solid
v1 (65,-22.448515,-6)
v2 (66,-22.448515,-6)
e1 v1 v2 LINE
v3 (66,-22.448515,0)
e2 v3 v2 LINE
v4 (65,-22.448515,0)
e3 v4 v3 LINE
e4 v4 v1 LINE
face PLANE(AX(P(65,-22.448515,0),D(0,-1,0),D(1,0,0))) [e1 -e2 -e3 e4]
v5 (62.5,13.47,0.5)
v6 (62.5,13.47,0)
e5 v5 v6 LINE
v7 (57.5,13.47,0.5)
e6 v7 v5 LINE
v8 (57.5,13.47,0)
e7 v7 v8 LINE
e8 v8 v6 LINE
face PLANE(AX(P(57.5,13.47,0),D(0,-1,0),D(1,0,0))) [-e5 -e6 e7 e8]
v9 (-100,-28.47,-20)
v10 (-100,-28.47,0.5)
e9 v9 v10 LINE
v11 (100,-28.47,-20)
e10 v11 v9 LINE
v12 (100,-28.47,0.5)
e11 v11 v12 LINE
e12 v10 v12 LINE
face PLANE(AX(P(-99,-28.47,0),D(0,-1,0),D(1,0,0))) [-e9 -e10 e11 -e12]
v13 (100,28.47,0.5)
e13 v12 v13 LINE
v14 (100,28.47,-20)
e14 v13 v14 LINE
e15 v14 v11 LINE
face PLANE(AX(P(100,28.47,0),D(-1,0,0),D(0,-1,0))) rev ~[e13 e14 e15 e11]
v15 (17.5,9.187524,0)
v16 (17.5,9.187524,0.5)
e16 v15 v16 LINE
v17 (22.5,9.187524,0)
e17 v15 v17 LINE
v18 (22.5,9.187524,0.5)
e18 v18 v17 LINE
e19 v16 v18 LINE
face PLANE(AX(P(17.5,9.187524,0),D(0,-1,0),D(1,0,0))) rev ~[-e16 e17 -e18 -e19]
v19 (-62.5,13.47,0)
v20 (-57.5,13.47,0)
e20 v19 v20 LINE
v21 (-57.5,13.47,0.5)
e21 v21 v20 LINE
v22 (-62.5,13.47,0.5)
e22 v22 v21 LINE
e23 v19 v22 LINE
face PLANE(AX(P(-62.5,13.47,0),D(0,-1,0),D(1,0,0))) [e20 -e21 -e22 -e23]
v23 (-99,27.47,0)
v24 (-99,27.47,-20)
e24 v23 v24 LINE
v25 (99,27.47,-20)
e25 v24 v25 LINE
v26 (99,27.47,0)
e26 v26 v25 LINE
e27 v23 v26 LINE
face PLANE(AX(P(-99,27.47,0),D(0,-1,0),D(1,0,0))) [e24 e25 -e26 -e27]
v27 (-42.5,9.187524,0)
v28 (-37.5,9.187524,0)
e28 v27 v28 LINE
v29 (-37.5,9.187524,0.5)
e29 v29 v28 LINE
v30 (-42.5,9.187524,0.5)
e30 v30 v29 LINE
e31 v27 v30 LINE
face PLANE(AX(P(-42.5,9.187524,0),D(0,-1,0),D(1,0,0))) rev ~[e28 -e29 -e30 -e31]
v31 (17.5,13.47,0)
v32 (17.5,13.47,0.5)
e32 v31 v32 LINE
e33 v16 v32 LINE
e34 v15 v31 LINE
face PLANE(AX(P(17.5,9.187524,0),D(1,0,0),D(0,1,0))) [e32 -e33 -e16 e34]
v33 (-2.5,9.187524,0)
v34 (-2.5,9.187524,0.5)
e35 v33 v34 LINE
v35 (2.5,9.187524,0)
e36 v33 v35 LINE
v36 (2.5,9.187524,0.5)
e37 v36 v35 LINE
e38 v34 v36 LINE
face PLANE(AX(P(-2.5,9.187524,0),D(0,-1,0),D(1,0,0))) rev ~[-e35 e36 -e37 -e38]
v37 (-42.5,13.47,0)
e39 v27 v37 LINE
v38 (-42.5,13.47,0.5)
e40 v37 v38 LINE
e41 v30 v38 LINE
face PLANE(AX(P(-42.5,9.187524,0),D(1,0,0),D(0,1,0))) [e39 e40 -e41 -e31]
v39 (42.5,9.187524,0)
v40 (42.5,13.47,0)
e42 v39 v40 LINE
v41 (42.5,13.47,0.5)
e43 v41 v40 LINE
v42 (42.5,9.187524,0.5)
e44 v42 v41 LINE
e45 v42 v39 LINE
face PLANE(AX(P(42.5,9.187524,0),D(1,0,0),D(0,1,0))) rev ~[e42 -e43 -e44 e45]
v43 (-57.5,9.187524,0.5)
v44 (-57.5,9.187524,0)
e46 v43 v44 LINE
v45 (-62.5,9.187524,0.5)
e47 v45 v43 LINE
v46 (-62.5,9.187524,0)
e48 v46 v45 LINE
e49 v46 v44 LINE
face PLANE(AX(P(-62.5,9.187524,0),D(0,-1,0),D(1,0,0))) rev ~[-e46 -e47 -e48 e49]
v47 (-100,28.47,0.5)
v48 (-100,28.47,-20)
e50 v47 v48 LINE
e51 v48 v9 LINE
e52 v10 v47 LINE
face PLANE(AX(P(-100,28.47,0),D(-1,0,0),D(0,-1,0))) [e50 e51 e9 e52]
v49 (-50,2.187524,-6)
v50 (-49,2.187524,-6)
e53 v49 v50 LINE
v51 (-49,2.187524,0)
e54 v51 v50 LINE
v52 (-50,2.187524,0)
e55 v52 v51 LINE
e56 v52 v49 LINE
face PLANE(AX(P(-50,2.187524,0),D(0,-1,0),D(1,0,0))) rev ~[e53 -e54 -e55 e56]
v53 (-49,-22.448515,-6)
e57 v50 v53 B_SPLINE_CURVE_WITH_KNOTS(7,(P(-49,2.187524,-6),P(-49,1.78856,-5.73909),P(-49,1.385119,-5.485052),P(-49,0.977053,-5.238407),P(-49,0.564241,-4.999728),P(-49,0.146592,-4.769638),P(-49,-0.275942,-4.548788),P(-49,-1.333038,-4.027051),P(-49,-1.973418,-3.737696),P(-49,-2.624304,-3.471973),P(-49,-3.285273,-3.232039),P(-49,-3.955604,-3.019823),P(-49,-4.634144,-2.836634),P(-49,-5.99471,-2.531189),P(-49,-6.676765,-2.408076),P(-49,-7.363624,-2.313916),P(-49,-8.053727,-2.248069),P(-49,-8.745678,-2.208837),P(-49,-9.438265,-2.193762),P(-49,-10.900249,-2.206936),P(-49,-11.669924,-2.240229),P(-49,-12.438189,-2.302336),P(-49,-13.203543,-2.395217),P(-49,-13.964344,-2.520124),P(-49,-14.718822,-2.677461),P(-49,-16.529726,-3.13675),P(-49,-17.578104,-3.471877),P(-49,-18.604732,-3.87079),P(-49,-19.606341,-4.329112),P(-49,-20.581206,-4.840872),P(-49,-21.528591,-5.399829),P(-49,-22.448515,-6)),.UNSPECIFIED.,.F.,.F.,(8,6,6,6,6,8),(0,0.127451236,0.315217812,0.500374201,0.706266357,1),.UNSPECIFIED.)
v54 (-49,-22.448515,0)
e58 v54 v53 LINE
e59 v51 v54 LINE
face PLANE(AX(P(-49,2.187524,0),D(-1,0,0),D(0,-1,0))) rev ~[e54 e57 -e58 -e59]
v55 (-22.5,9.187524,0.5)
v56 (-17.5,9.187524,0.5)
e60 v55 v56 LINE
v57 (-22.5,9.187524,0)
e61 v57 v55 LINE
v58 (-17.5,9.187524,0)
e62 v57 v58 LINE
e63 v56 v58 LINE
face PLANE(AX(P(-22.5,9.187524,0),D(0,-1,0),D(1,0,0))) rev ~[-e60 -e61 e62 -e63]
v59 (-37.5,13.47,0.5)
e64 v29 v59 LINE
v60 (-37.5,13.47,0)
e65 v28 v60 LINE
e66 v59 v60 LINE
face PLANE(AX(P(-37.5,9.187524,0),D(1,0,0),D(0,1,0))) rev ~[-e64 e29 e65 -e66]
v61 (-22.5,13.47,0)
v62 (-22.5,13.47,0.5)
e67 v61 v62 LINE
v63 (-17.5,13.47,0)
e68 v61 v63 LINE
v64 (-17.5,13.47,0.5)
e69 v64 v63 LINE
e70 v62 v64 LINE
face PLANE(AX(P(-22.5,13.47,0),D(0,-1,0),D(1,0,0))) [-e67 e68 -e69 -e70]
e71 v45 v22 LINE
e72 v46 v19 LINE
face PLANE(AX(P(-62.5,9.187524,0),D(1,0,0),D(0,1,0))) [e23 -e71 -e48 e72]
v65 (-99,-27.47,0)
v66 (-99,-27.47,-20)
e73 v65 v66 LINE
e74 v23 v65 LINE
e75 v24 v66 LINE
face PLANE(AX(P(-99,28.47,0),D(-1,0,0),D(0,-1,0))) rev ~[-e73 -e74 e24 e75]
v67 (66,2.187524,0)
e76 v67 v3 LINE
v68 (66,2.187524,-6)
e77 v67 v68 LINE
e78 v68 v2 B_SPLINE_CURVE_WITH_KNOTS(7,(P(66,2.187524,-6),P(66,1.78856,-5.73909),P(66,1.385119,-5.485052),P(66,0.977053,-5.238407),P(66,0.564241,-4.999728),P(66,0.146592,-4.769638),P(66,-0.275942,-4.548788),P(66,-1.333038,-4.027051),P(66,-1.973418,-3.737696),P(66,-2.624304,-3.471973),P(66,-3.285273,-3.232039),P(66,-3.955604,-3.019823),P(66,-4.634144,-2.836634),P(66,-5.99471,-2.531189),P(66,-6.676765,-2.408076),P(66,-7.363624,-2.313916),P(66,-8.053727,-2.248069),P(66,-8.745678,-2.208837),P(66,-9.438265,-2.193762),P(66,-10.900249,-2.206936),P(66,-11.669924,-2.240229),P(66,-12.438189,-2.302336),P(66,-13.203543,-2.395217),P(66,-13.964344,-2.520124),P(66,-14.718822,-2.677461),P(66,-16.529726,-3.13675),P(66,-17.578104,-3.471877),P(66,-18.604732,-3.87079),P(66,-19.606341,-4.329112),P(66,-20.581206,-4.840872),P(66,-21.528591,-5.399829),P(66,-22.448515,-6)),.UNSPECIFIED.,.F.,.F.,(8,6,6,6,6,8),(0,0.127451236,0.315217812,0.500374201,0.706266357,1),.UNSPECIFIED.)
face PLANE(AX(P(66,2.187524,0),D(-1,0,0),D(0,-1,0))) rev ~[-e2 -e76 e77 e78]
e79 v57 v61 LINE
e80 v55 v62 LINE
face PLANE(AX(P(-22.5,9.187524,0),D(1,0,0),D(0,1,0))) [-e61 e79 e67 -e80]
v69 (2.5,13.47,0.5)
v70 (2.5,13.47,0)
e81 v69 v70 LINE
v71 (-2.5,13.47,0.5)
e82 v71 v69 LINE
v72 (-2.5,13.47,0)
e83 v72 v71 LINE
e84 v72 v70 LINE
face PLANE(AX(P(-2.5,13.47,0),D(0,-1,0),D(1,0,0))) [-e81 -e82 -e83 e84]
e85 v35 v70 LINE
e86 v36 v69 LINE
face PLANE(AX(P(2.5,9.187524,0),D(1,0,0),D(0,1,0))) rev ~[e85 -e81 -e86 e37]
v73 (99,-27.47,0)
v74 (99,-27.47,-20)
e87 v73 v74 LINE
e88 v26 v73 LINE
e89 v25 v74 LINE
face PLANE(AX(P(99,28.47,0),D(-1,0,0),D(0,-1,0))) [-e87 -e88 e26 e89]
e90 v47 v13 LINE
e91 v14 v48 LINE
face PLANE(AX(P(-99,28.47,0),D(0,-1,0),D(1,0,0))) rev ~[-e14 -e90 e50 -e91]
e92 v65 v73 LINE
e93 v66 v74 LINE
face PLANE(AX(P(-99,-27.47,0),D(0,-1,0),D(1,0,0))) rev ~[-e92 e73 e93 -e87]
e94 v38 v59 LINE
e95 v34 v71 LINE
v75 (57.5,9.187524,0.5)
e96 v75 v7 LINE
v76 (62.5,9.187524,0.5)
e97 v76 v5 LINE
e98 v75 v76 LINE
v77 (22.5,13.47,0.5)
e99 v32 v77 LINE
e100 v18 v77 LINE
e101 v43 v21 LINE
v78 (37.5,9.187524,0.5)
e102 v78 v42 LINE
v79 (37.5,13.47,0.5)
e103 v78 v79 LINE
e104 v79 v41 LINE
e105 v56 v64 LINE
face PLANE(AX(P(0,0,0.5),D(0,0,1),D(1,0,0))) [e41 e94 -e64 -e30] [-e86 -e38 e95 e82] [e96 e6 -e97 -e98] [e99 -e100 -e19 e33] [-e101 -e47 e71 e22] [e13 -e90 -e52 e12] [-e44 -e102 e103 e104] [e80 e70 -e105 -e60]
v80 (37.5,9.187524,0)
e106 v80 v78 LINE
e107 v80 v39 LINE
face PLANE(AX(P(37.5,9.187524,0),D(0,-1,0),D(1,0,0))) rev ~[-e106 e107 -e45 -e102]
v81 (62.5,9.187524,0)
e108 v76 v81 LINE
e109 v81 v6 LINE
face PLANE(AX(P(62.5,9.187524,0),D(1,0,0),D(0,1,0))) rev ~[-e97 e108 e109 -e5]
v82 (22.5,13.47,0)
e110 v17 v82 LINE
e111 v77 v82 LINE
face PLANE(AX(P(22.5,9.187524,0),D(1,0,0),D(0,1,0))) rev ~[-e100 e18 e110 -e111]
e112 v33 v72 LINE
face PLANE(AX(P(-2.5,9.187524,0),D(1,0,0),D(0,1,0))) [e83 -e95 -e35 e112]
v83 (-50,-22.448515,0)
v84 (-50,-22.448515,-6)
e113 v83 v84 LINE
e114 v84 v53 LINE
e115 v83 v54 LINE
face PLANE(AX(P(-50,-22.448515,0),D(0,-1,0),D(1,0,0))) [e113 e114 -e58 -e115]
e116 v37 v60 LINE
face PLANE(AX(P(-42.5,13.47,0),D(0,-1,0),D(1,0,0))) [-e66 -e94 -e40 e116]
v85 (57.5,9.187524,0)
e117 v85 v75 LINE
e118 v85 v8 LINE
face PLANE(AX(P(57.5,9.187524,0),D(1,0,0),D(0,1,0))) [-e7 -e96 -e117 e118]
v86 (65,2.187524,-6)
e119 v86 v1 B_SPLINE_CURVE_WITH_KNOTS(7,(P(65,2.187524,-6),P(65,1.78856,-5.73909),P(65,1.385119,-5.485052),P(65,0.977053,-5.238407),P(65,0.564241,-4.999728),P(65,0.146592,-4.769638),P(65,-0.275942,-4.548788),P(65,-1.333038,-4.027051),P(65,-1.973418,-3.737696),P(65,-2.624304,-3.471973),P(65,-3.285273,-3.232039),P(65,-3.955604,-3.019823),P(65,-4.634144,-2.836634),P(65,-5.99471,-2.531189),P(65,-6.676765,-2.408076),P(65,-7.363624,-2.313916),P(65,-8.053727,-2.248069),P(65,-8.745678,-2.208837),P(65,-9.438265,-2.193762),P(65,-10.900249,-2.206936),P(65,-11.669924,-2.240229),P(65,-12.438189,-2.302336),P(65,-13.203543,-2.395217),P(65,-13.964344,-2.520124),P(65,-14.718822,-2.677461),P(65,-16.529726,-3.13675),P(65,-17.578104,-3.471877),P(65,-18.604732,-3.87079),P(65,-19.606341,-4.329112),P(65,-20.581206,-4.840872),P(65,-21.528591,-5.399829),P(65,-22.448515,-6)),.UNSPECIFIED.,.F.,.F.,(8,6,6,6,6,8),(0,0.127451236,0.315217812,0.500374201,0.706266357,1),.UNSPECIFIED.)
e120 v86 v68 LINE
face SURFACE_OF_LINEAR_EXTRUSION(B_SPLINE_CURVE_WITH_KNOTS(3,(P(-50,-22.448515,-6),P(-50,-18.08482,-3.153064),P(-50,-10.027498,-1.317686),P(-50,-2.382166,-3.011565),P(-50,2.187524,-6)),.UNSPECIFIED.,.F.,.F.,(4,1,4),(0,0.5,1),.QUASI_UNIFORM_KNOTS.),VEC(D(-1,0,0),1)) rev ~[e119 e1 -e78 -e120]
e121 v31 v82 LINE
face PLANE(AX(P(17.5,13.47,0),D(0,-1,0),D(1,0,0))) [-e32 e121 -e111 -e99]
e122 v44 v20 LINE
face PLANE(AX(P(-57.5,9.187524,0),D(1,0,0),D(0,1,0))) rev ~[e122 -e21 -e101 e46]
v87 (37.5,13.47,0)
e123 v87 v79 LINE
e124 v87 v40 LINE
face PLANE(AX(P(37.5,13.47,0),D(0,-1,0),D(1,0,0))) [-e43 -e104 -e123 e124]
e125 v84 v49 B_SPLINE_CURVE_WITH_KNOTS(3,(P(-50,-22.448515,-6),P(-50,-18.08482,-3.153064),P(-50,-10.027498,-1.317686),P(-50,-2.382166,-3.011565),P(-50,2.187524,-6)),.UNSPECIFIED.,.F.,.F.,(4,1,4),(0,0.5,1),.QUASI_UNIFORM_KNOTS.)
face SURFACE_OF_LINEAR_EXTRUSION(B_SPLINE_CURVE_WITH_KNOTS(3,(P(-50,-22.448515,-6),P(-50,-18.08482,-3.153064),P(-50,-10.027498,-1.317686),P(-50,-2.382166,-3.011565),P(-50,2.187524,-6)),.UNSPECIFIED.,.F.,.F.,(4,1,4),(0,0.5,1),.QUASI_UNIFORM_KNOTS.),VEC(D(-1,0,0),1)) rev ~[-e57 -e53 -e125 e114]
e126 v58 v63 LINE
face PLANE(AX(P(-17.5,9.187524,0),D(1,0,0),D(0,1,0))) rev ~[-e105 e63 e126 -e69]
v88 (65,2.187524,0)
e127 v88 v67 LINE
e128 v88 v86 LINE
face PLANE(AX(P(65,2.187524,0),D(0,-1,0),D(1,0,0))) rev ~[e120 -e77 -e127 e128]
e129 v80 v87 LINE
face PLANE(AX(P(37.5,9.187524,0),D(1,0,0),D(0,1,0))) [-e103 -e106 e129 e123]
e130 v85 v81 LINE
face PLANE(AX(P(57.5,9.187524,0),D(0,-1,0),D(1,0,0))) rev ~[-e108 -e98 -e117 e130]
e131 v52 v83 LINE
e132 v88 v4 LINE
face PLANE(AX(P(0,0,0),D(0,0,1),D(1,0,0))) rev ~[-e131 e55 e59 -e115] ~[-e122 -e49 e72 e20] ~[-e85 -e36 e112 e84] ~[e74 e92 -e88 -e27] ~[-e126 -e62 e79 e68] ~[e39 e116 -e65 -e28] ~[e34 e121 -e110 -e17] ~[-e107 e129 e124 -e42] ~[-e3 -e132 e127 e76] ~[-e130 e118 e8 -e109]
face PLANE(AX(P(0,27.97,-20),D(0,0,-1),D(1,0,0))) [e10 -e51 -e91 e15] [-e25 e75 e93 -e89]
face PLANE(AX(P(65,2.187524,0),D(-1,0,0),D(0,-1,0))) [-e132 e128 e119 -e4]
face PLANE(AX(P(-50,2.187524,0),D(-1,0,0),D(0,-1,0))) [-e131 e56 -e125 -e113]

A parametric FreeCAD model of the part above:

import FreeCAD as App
import Part
import Sketcher

doc = App.newDocument("Part")
params = doc.addObject("Spreadsheet::Sheet", "Params")
for row, (alias, value) in enumerate([
    ("sketch1_width", "200 mm"),
    ("sketch1_width2", "5 mm"),
    ("sketch1_height", "56.94 mm"),
    ("pad1_length", "1 mm"),
    ("sketch2_width", "200 mm"),
    ("sketch2_width2", "5 mm"),
    ("sketch2_height", "56.94 mm"),
    ("sketch3_width", "1 mm"),
    ("pad2_length", "6 mm"),
    ("sketch5_width", "1 mm"),
    ("sketch5_height", "56.94 mm"),
    ("pad3_length", "20 mm"),
    ("sketch6_width", "1 mm"),
    ("sketch6_height", "56.94 mm"),
    ("pad4_length", "20 mm"),
    ("sketch7_width", "198 mm"),
    ("sketch7_height", "1 mm"),
    ("pad5_length", "20 mm"),
    ("sketch8_width", "198 mm"),
    ("sketch8_height", "1 mm"),
    ("pad6_length", "20 mm"),
], start=1):
    params.set(f"A{row}", alias)
    params.set(f"B{row}", "=" + value)
    params.setAlias(f"B{row}", alias)

body = doc.addObject("PartDesign::Body", "Body")

sketch1 = body.newObject("Sketcher::SketchObject", "Sketch")
sketch1.AttachmentSupport = (doc.getObject("XY_Plane"), [""])
sketch1.MapMode = "FlatFace"
sketch1.addGeometry([
    Part.LineSegment(App.Vector(-100, 28.5, 0), App.Vector(-100, -28.5, 0)),
    Part.LineSegment(App.Vector(-100, -28.5, 0), App.Vector(100, -28.5, 0)),
    Part.LineSegment(App.Vector(100, -28.5, 0), App.Vector(100, 28.5, 0)),
    Part.LineSegment(App.Vector(100, 28.5, 0), App.Vector(-100, 28.5, 0)),
    Part.LineSegment(App.Vector(-57.5, 9.2, 0), App.Vector(-62.5, 9.2, 0)),
    Part.LineSegment(App.Vector(-62.5, 9.2, 0), App.Vector(-62.5, 13.5, 0)),
    Part.LineSegment(App.Vector(-62.5, 13.5, 0), App.Vector(-57.5, 13.5, 0)),
    Part.LineSegment(App.Vector(-57.5, 13.5, 0), App.Vector(-57.5, 9.2, 0)),
    Part.LineSegment(App.Vector(-37.5, 9.2, 0), App.Vector(-42.5, 9.2, 0)),
    Part.LineSegment(App.Vector(-42.5, 9.2, 0), App.Vector(-42.5, 13.5, 0)),
    Part.LineSegment(App.Vector(-42.5, 13.5, 0), App.Vector(-37.5, 13.5, 0)),
    Part.LineSegment(App.Vector(-37.5, 13.5, 0), App.Vector(-37.5, 9.2, 0)),
    Part.LineSegment(App.Vector(-17.5, 9.2, 0), App.Vector(-22.5, 9.2, 0)),
    Part.LineSegment(App.Vector(-22.5, 9.2, 0), App.Vector(-22.5, 13.5, 0)),
    Part.LineSegment(App.Vector(-22.5, 13.5, 0), App.Vector(-17.5, 13.5, 0)),
    Part.LineSegment(App.Vector(-17.5, 13.5, 0), App.Vector(-17.5, 9.2, 0)),
    Part.LineSegment(App.Vector(2.5, 9.2, 0), App.Vector(-2.5, 9.2, 0)),
    Part.LineSegment(App.Vector(-2.5, 9.2, 0), App.Vector(-2.5, 13.5, 0)),
    Part.LineSegment(App.Vector(-2.5, 13.5, 0), App.Vector(2.5, 13.5, 0)),
    Part.LineSegment(App.Vector(2.5, 13.5, 0), App.Vector(2.5, 9.2, 0)),
    Part.LineSegment(App.Vector(22.5, 9.2, 0), App.Vector(17.5, 9.2, 0)),
    Part.LineSegment(App.Vector(17.5, 9.2, 0), App.Vector(17.5, 13.5, 0)),
    Part.LineSegment(App.Vector(17.5, 13.5, 0), App.Vector(22.5, 13.5, 0)),
    Part.LineSegment(App.Vector(22.5, 13.5, 0), App.Vector(22.5, 9.2, 0)),
    Part.LineSegment(App.Vector(42.5, 9.2, 0), App.Vector(37.5, 9.2, 0)),
    Part.LineSegment(App.Vector(37.5, 9.2, 0), App.Vector(37.5, 13.5, 0)),
    Part.LineSegment(App.Vector(37.5, 13.5, 0), App.Vector(42.5, 13.5, 0)),
    Part.LineSegment(App.Vector(42.5, 13.5, 0), App.Vector(42.5, 9.2, 0)),
    Part.LineSegment(App.Vector(62.5, 9.2, 0), App.Vector(57.5, 9.2, 0)),
    Part.LineSegment(App.Vector(57.5, 9.2, 0), App.Vector(57.5, 13.5, 0)),
    Part.LineSegment(App.Vector(57.5, 13.5, 0), App.Vector(62.5, 13.5, 0)),
    Part.LineSegment(App.Vector(62.5, 13.5, 0), App.Vector(62.5, 9.2, 0)),
], False)
sketch1.addConstraint([
    Sketcher.Constraint("Coincident", 0, 2, 1, 1),
    Sketcher.Constraint("Coincident", 1, 2, 2, 1),
    Sketcher.Constraint("Coincident", 2, 2, 3, 1),
    Sketcher.Constraint("Coincident", 3, 2, 0, 1),
    Sketcher.Constraint("Coincident", 4, 2, 5, 1),
    Sketcher.Constraint("Coincident", 5, 2, 6, 1),
    Sketcher.Constraint("Coincident", 6, 2, 7, 1),
    Sketcher.Constraint("Coincident", 7, 2, 4, 1),
    Sketcher.Constraint("Coincident", 8, 2, 9, 1),
    Sketcher.Constraint("Coincident", 9, 2, 10, 1),
    Sketcher.Constraint("Coincident", 10, 2, 11, 1),
    Sketcher.Constraint("Coincident", 11, 2, 8, 1),
    Sketcher.Constraint("Coincident", 12, 2, 13, 1),
    Sketcher.Constraint("Coincident", 13, 2, 14, 1),
    Sketcher.Constraint("Coincident", 14, 2, 15, 1),
    Sketcher.Constraint("Coincident", 15, 2, 12, 1),
    Sketcher.Constraint("Coincident", 16, 2, 17, 1),
    Sketcher.Constraint("Coincident", 17, 2, 18, 1),
    Sketcher.Constraint("Coincident", 18, 2, 19, 1),
    Sketcher.Constraint("Coincident", 19, 2, 16, 1),
    Sketcher.Constraint("Coincident", 20, 2, 21, 1),
    Sketcher.Constraint("Coincident", 21, 2, 22, 1),
    Sketcher.Constraint("Coincident", 22, 2, 23, 1),
    Sketcher.Constraint("Coincident", 23, 2, 20, 1),
    Sketcher.Constraint("Coincident", 24, 2, 25, 1),
    Sketcher.Constraint("Coincident", 25, 2, 26, 1),
    Sketcher.Constraint("Coincident", 26, 2, 27, 1),
    Sketcher.Constraint("Coincident", 27, 2, 24, 1),
    Sketcher.Constraint("Coincident", 28, 2, 29, 1),
    Sketcher.Constraint("Coincident", 29, 2, 30, 1),
    Sketcher.Constraint("Coincident", 30, 2, 31, 1),
    Sketcher.Constraint("Coincident", 31, 2, 28, 1),
    Sketcher.Constraint("Vertical", 0),
    Sketcher.Constraint("Horizontal", 1),
    Sketcher.Constraint("Vertical", 2),
    Sketcher.Constraint("Horizontal", 3),
    Sketcher.Constraint("Horizontal", 4),
    Sketcher.Constraint("Vertical", 5),
    Sketcher.Constraint("Horizontal", 6),
    Sketcher.Constraint("Vertical", 7),
    Sketcher.Constraint("Horizontal", 8),
    Sketcher.Constraint("Vertical", 9),
    Sketcher.Constraint("Horizontal", 10),
    Sketcher.Constraint("Vertical", 11),
    Sketcher.Constraint("Horizontal", 12),
    Sketcher.Constraint("Vertical", 13),
    Sketcher.Constraint("Horizontal", 14),
    Sketcher.Constraint("Vertical", 15),
    Sketcher.Constraint("Horizontal", 16),
    Sketcher.Constraint("Vertical", 17),
    Sketcher.Constraint("Horizontal", 18),
    Sketcher.Constraint("Vertical", 19),
    Sketcher.Constraint("Horizontal", 20),
    Sketcher.Constraint("Vertical", 21),
    Sketcher.Constraint("Horizontal", 22),
    Sketcher.Constraint("Vertical", 23),
    Sketcher.Constraint("Horizontal", 24),
    Sketcher.Constraint("Vertical", 25),
    Sketcher.Constraint("Horizontal", 26),
    Sketcher.Constraint("Vertical", 27),
    Sketcher.Constraint("Horizontal", 28),
    Sketcher.Constraint("Vertical", 29),
    Sketcher.Constraint("Horizontal", 30),
    Sketcher.Constraint("Vertical", 31),
    Sketcher.Constraint("Symmetric", 0, 2, 2, 2, -1, 1),
    Sketcher.Constraint("Symmetric", 15, 2, 20, 2, -2),
    Sketcher.Constraint("Symmetric", 13, 2, 22, 2, -2),
    Sketcher.Constraint("Symmetric", 11, 2, 24, 2, -2),
    Sketcher.Constraint("Symmetric", 9, 2, 26, 2, -2),
    Sketcher.Constraint("Symmetric", 7, 2, 28, 2, -2),
    Sketcher.Constraint("Symmetric", 5, 2, 30, 2, -2),
    Sketcher.Constraint("Horizontal", 7, 2, 8, 2),
    Sketcher.Constraint("Horizontal", 6, 2, 9, 2),
    Sketcher.Constraint("Horizontal", 11, 2, 12, 2),
    Sketcher.Constraint("Horizontal", 10, 2, 13, 2),
    Sketcher.Constraint("Horizontal", 15, 2, 16, 2),
    Sketcher.Constraint("Horizontal", 14, 2, 17, 2),
    Sketcher.Constraint("Equal", 6, 8),
    Sketcher.Constraint("Equal", 10, 12),
    Sketcher.Constraint("Equal", 14, 16),
    Sketcher.Constraint("DistanceX", 1, 1, 1, 2, 200.0),
    Sketcher.Constraint("DistanceX", 4, 2, 4, 1, 5.0),
    Sketcher.Constraint("DistanceY", 5, 2, 3, 2, 15.0),
    Sketcher.Constraint("DistanceX", 7, 2, 8, 2, 15.0),
    Sketcher.Constraint("DistanceX", 11, 2, 12, 2, 15.0),
    Sketcher.Constraint("DistanceX", 15, 2, 16, 2, 15.0),
    Sketcher.Constraint("DistanceX", 19, 2, 20, 2, 15.0),
    Sketcher.Constraint("DistanceY", 0, 2, 0, 1, 56.94),
    Sketcher.Constraint("DistanceY", 5, 1, 5, 2, 4.282476),
])
sketch1.setExpression("Constraints[80]", "Params.sketch1_width")
sketch1.setExpression("Constraints[81]", "Params.sketch1_width2")
sketch1.setExpression("Constraints[87]", "Params.sketch1_height")
pad1 = body.newObject("PartDesign::Pad", "Pad")
pad1.Profile = sketch1
pad1.setExpression("Length", "Params.pad1_length")
pad1.Midplane = True

sketch2 = body.newObject("Sketcher::SketchObject", "Sketch001")
sketch2.AttachmentSupport = (doc.getObject("XY_Plane"), [""])
sketch2.MapMode = "FlatFace"
sketch2.addGeometry([
    Part.LineSegment(App.Vector(-100, 28.5, 0), App.Vector(-100, -28.5, 0)),
    Part.LineSegment(App.Vector(-100, -28.5, 0), App.Vector(100, -28.5, 0)),
    Part.LineSegment(App.Vector(100, -28.5, 0), App.Vector(100, 28.5, 0)),
    Part.LineSegment(App.Vector(100, 28.5, 0), App.Vector(-100, 28.5, 0)),
    Part.LineSegment(App.Vector(-57.5, 9.2, 0), App.Vector(-62.5, 9.2, 0)),
    Part.LineSegment(App.Vector(-62.5, 9.2, 0), App.Vector(-62.5, 13.5, 0)),
    Part.LineSegment(App.Vector(-62.5, 13.5, 0), App.Vector(-57.5, 13.5, 0)),
    Part.LineSegment(App.Vector(-57.5, 13.5, 0), App.Vector(-57.5, 9.2, 0)),
    Part.LineSegment(App.Vector(-37.5, 9.2, 0), App.Vector(-42.5, 9.2, 0)),
    Part.LineSegment(App.Vector(-42.5, 9.2, 0), App.Vector(-42.5, 13.5, 0)),
    Part.LineSegment(App.Vector(-42.5, 13.5, 0), App.Vector(-37.5, 13.5, 0)),
    Part.LineSegment(App.Vector(-37.5, 13.5, 0), App.Vector(-37.5, 9.2, 0)),
    Part.LineSegment(App.Vector(-17.5, 9.2, 0), App.Vector(-22.5, 9.2, 0)),
    Part.LineSegment(App.Vector(-22.5, 9.2, 0), App.Vector(-22.5, 13.5, 0)),
    Part.LineSegment(App.Vector(-22.5, 13.5, 0), App.Vector(-17.5, 13.5, 0)),
    Part.LineSegment(App.Vector(-17.5, 13.5, 0), App.Vector(-17.5, 9.2, 0)),
    Part.LineSegment(App.Vector(2.5, 9.2, 0), App.Vector(-2.5, 9.2, 0)),
    Part.LineSegment(App.Vector(-2.5, 9.2, 0), App.Vector(-2.5, 13.5, 0)),
    Part.LineSegment(App.Vector(-2.5, 13.5, 0), App.Vector(2.5, 13.5, 0)),
    Part.LineSegment(App.Vector(2.5, 13.5, 0), App.Vector(2.5, 9.2, 0)),
    Part.LineSegment(App.Vector(22.5, 9.2, 0), App.Vector(17.5, 9.2, 0)),
    Part.LineSegment(App.Vector(17.5, 9.2, 0), App.Vector(17.5, 13.5, 0)),
    Part.LineSegment(App.Vector(17.5, 13.5, 0), App.Vector(22.5, 13.5, 0)),
    Part.LineSegment(App.Vector(22.5, 13.5, 0), App.Vector(22.5, 9.2, 0)),
    Part.LineSegment(App.Vector(42.5, 9.2, 0), App.Vector(37.5, 9.2, 0)),
    Part.LineSegment(App.Vector(37.5, 9.2, 0), App.Vector(37.5, 13.5, 0)),
    Part.LineSegment(App.Vector(37.5, 13.5, 0), App.Vector(42.5, 13.5, 0)),
    Part.LineSegment(App.Vector(42.5, 13.5, 0), App.Vector(42.5, 9.2, 0)),
    Part.LineSegment(App.Vector(62.5, 9.2, 0), App.Vector(57.5, 9.2, 0)),
    Part.LineSegment(App.Vector(57.5, 9.2, 0), App.Vector(57.5, 13.5, 0)),
    Part.LineSegment(App.Vector(57.5, 13.5, 0), App.Vector(62.5, 13.5, 0)),
    Part.LineSegment(App.Vector(62.5, 13.5, 0), App.Vector(62.5, 9.2, 0)),
], False)
sketch2.addConstraint([
    Sketcher.Constraint("Coincident", 0, 2, 1, 1),
    Sketcher.Constraint("Coincident", 1, 2, 2, 1),
    Sketcher.Constraint("Coincident", 2, 2, 3, 1),
    Sketcher.Constraint("Coincident", 3, 2, 0, 1),
    Sketcher.Constraint("Coincident", 4, 2, 5, 1),
    Sketcher.Constraint("Coincident", 5, 2, 6, 1),
    Sketcher.Constraint("Coincident", 6, 2, 7, 1),
    Sketcher.Constraint("Coincident", 7, 2, 4, 1),
    Sketcher.Constraint("Coincident", 8, 2, 9, 1),
    Sketcher.Constraint("Coincident", 9, 2, 10, 1),
    Sketcher.Constraint("Coincident", 10, 2, 11, 1),
    Sketcher.Constraint("Coincident", 11, 2, 8, 1),
    Sketcher.Constraint("Coincident", 12, 2, 13, 1),
    Sketcher.Constraint("Coincident", 13, 2, 14, 1),
    Sketcher.Constraint("Coincident", 14, 2, 15, 1),
    Sketcher.Constraint("Coincident", 15, 2, 12, 1),
    Sketcher.Constraint("Coincident", 16, 2, 17, 1),
    Sketcher.Constraint("Coincident", 17, 2, 18, 1),
    Sketcher.Constraint("Coincident", 18, 2, 19, 1),
    Sketcher.Constraint("Coincident", 19, 2, 16, 1),
    Sketcher.Constraint("Coincident", 20, 2, 21, 1),
    Sketcher.Constraint("Coincident", 21, 2, 22, 1),
    Sketcher.Constraint("Coincident", 22, 2, 23, 1),
    Sketcher.Constraint("Coincident", 23, 2, 20, 1),
    Sketcher.Constraint("Coincident", 24, 2, 25, 1),
    Sketcher.Constraint("Coincident", 25, 2, 26, 1),
    Sketcher.Constraint("Coincident", 26, 2, 27, 1),
    Sketcher.Constraint("Coincident", 27, 2, 24, 1),
    Sketcher.Constraint("Coincident", 28, 2, 29, 1),
    Sketcher.Constraint("Coincident", 29, 2, 30, 1),
    Sketcher.Constraint("Coincident", 30, 2, 31, 1),
    Sketcher.Constraint("Coincident", 31, 2, 28, 1),
    Sketcher.Constraint("Vertical", 0),
    Sketcher.Constraint("Horizontal", 1),
    Sketcher.Constraint("Vertical", 2),
    Sketcher.Constraint("Horizontal", 3),
    Sketcher.Constraint("Horizontal", 4),
    Sketcher.Constraint("Vertical", 5),
    Sketcher.Constraint("Horizontal", 6),
    Sketcher.Constraint("Vertical", 7),
    Sketcher.Constraint("Horizontal", 8),
    Sketcher.Constraint("Vertical", 9),
    Sketcher.Constraint("Horizontal", 10),
    Sketcher.Constraint("Vertical", 11),
    Sketcher.Constraint("Horizontal", 12),
    Sketcher.Constraint("Vertical", 13),
    Sketcher.Constraint("Horizontal", 14),
    Sketcher.Constraint("Vertical", 15),
    Sketcher.Constraint("Horizontal", 16),
    Sketcher.Constraint("Vertical", 17),
    Sketcher.Constraint("Horizontal", 18),
    Sketcher.Constraint("Vertical", 19),
    Sketcher.Constraint("Horizontal", 20),
    Sketcher.Constraint("Vertical", 21),
    Sketcher.Constraint("Horizontal", 22),
    Sketcher.Constraint("Vertical", 23),
    Sketcher.Constraint("Horizontal", 24),
    Sketcher.Constraint("Vertical", 25),
    Sketcher.Constraint("Horizontal", 26),
    Sketcher.Constraint("Vertical", 27),
    Sketcher.Constraint("Horizontal", 28),
    Sketcher.Constraint("Vertical", 29),
    Sketcher.Constraint("Horizontal", 30),
    Sketcher.Constraint("Vertical", 31),
    Sketcher.Constraint("Symmetric", 0, 2, 2, 2, -1, 1),
    Sketcher.Constraint("Symmetric", 15, 2, 20, 2, -2),
    Sketcher.Constraint("Symmetric", 13, 2, 22, 2, -2),
    Sketcher.Constraint("Symmetric", 11, 2, 24, 2, -2),
    Sketcher.Constraint("Symmetric", 9, 2, 26, 2, -2),
    Sketcher.Constraint("Symmetric", 7, 2, 28, 2, -2),
    Sketcher.Constraint("Symmetric", 5, 2, 30, 2, -2),
    Sketcher.Constraint("Horizontal", 7, 2, 8, 2),
    Sketcher.Constraint("Horizontal", 6, 2, 9, 2),
    Sketcher.Constraint("Horizontal", 11, 2, 12, 2),
    Sketcher.Constraint("Horizontal", 10, 2, 13, 2),
    Sketcher.Constraint("Horizontal", 15, 2, 16, 2),
    Sketcher.Constraint("Horizontal", 14, 2, 17, 2),
    Sketcher.Constraint("Equal", 6, 8),
    Sketcher.Constraint("Equal", 10, 12),
    Sketcher.Constraint("Equal", 14, 16),
    Sketcher.Constraint("DistanceX", 1, 1, 1, 2, 200.0),
    Sketcher.Constraint("DistanceX", 4, 2, 4, 1, 5.0),
    Sketcher.Constraint("DistanceY", 5, 2, 3, 2, 15.0),
    Sketcher.Constraint("DistanceX", 7, 2, 8, 2, 15.0),
    Sketcher.Constraint("DistanceX", 11, 2, 12, 2, 15.0),
    Sketcher.Constraint("DistanceX", 15, 2, 16, 2, 15.0),
    Sketcher.Constraint("DistanceX", 19, 2, 20, 2, 15.0),
    Sketcher.Constraint("DistanceY", 0, 2, 0, 1, 56.94),
    Sketcher.Constraint("DistanceY", 5, 1, 5, 2, 4.282476),
])
sketch2.setExpression("Constraints[80]", "Params.sketch2_width")
sketch2.setExpression("Constraints[81]", "Params.sketch2_width2")
sketch2.setExpression("Constraints[87]", "Params.sketch2_height")
pocket1 = body.newObject("PartDesign::Pocket", "Pocket")
pocket1.Profile = sketch2
pocket1.Type = "ThroughAll"

sketch3 = body.newObject("Sketcher::SketchObject", "Sketch002")
sketch3.AttachmentSupport = (doc.getObject("XY_Plane"), [""])
sketch3.MapMode = "FlatFace"
sketch3.addGeometry([
    Part.LineSegment(App.Vector(-50, -22.4, 0), App.Vector(-50, 2.2, 0)),
    Part.LineSegment(App.Vector(-50, 2.2, 0), App.Vector(-49, 2.2, 0)),
    Part.LineSegment(App.Vector(-49, 2.2, 0), App.Vector(-49, -22.4, 0)),
    Part.LineSegment(App.Vector(-49, -22.4, 0), App.Vector(-50, -22.4, 0)),
    Part.LineSegment(App.Vector(65, -22.4, 0), App.Vector(65, 2.2, 0)),
    Part.LineSegment(App.Vector(65, 2.2, 0), App.Vector(66, 2.2, 0)),
    Part.LineSegment(App.Vector(66, 2.2, 0), App.Vector(66, -22.4, 0)),
    Part.LineSegment(App.Vector(66, -22.4, 0), App.Vector(65, -22.4, 0)),
], False)
sketch3.addConstraint([
    Sketcher.Constraint("Coincident", 0, 2, 1, 1),
    Sketcher.Constraint("Coincident", 1, 2, 2, 1),
    Sketcher.Constraint("Coincident", 2, 2, 3, 1),
    Sketcher.Constraint("Coincident", 3, 2, 0, 1),
    Sketcher.Constraint("Coincident", 4, 2, 5, 1),
    Sketcher.Constraint("Coincident", 5, 2, 6, 1),
    Sketcher.Constraint("Coincident", 6, 2, 7, 1),
    Sketcher.Constraint("Coincident", 7, 2, 4, 1),
    Sketcher.Constraint("Vertical", 0),
    Sketcher.Constraint("Horizontal", 1),
    Sketcher.Constraint("Vertical", 2),
    Sketcher.Constraint("Horizontal", 3),
    Sketcher.Constraint("Vertical", 4),
    Sketcher.Constraint("Horizontal", 5),
    Sketcher.Constraint("Vertical", 6),
    Sketcher.Constraint("Horizontal", 7),
    Sketcher.Constraint("Horizontal", 1, 2, 4, 2),
    Sketcher.Constraint("Horizontal", 3, 2, 6, 2),
    Sketcher.Constraint("Equal", 3, 5),
    Sketcher.Constraint("DistanceX", 1, 1, 1, 2, 1.0),
    Sketcher.Constraint("DistanceX", 0, 2, -1, 1, 50.0),
    Sketcher.Constraint("DistanceX", -1, 1, 4, 2, 65.0),
    Sketcher.Constraint("DistanceY", 0, 1, 0, 2, 24.636038),
    Sketcher.Constraint("DistanceY", -1, 1, 0, 2, 2.187524),
])
sketch3.setExpression("Constraints[19]", "Params.sketch3_width")
pad2 = body.newObject("PartDesign::Pad", "Pad001")
pad2.Profile = sketch3
pad2.setExpression("Length", "Params.pad2_length")
pad2.Reversed = True

sketch4 = body.newObject("Sketcher::SketchObject", "Sketch003")
sketch4.AttachmentSupport = (doc.getObject("YZ_Plane"), [""])
sketch4.MapMode = "FlatFace"
sketch4.AttachmentOffset = App.Placement(App.Vector(0, 0, -50), App.Rotation())
sketch4.addGeometry([
    Part.LineSegment(App.Vector(2.187524, -6, 0), App.Vector(-22.448515, -6, 0)),
    Part.BSplineCurve([App.Vector(-22.448515, -6, 0), App.Vector(-18.08482, -3.153064, 0), App.Vector(-10.027498, -1.317686, 0), App.Vector(-2.382166, -3.011565, 0), App.Vector(2.187524, -6, 0)], [4, 1, 4], [0, 0.5, 1], False, 3, [1, 1, 1, 1, 1], False),
], False)
sketch4.addConstraint([
    Sketcher.Constraint("Block", 1),
    Sketcher.Constraint("Coincident", 0, 1, 1, 2),
    Sketcher.Constraint("Coincident", 1, 1, 0, 2),
])
pocket2 = body.newObject("PartDesign::Pocket", "Pocket001")
pocket2.Profile = sketch4
pocket2.Type = "ThroughAll"
pocket2.Reversed = True

sketch5 = body.newObject("Sketcher::SketchObject", "Sketch004")
sketch5.AttachmentSupport = (doc.getObject("XY_Plane"), [""])
sketch5.MapMode = "FlatFace"
sketch5.addGeometry([
    Part.LineSegment(App.Vector(99, -28.5, 0), App.Vector(99, 28.5, 0)),
    Part.LineSegment(App.Vector(99, 28.5, 0), App.Vector(100, 28.5, 0)),
    Part.LineSegment(App.Vector(100, 28.5, 0), App.Vector(100, -28.5, 0)),
    Part.LineSegment(App.Vector(100, -28.5, 0), App.Vector(99, -28.5, 0)),
], False)
sketch5.addConstraint([
    Sketcher.Constraint("Coincident", 0, 2, 1, 1),
    Sketcher.Constraint("Coincident", 1, 2, 2, 1),
    Sketcher.Constraint("Coincident", 2, 2, 3, 1),
    Sketcher.Constraint("Coincident", 3, 2, 0, 1),
    Sketcher.Constraint("Vertical", 0),
    Sketcher.Constraint("Horizontal", 1),
    Sketcher.Constraint("Vertical", 2),
    Sketcher.Constraint("Horizontal", 3),
    Sketcher.Constraint("DistanceX", 1, 1, 1, 2, 1.0),
    Sketcher.Constraint("DistanceX", -1, 1, 0, 2, 99.0),
    Sketcher.Constraint("DistanceY", 0, 1, 0, 2, 56.94),
    Sketcher.Constraint("DistanceY", -1, 1, 0, 2, 28.47),
])
sketch5.setExpression("Constraints[8]", "Params.sketch5_width")
sketch5.setExpression("Constraints[10]", "Params.sketch5_height")
pad3 = body.newObject("PartDesign::Pad", "Pad002")
pad3.Profile = sketch5
pad3.setExpression("Length", "Params.pad3_length")
pad3.Reversed = True

sketch6 = body.newObject("Sketcher::SketchObject", "Sketch005")
sketch6.AttachmentSupport = (doc.getObject("XY_Plane"), [""])
sketch6.MapMode = "FlatFace"
sketch6.addGeometry([
    Part.LineSegment(App.Vector(-100, -28.5, 0), App.Vector(-100, 28.5, 0)),
    Part.LineSegment(App.Vector(-100, 28.5, 0), App.Vector(-99, 28.5, 0)),
    Part.LineSegment(App.Vector(-99, 28.5, 0), App.Vector(-99, -28.5, 0)),
    Part.LineSegment(App.Vector(-99, -28.5, 0), App.Vector(-100, -28.5, 0)),
], False)
sketch6.addConstraint([
    Sketcher.Constraint("Coincident", 0, 2, 1, 1),
    Sketcher.Constraint("Coincident", 1, 2, 2, 1),
    Sketcher.Constraint("Coincident", 2, 2, 3, 1),
    Sketcher.Constraint("Coincident", 3, 2, 0, 1),
    Sketcher.Constraint("Vertical", 0),
    Sketcher.Constraint("Horizontal", 1),
    Sketcher.Constraint("Vertical", 2),
    Sketcher.Constraint("Horizontal", 3),
    Sketcher.Constraint("DistanceX", 1, 1, 1, 2, 1.0),
    Sketcher.Constraint("DistanceX", 0, 2, -1, 1, 100.0),
    Sketcher.Constraint("DistanceY", 0, 1, 0, 2, 56.94),
    Sketcher.Constraint("DistanceY", -1, 1, 0, 2, 28.47),
])
sketch6.setExpression("Constraints[8]", "Params.sketch6_width")
sketch6.setExpression("Constraints[10]", "Params.sketch6_height")
pad4 = body.newObject("PartDesign::Pad", "Pad003")
pad4.Profile = sketch6
pad4.setExpression("Length", "Params.pad4_length")
pad4.Reversed = True

sketch7 = body.newObject("Sketcher::SketchObject", "Sketch006")
sketch7.AttachmentSupport = (doc.getObject("XY_Plane"), [""])
sketch7.MapMode = "FlatFace"
sketch7.addGeometry([
    Part.LineSegment(App.Vector(-99, -28.5, 0), App.Vector(-99, -27.5, 0)),
    Part.LineSegment(App.Vector(-99, -27.5, 0), App.Vector(99, -27.5, 0)),
    Part.LineSegment(App.Vector(99, -27.5, 0), App.Vector(99, -28.5, 0)),
    Part.LineSegment(App.Vector(99, -28.5, 0), App.Vector(-99, -28.5, 0)),
], False)
sketch7.addConstraint([
    Sketcher.Constraint("Coincident", 0, 2, 1, 1),
    Sketcher.Constraint("Coincident", 1, 2, 2, 1),
    Sketcher.Constraint("Coincident", 2, 2, 3, 1),
    Sketcher.Constraint("Coincident", 3, 2, 0, 1),
    Sketcher.Constraint("Vertical", 0),
    Sketcher.Constraint("Horizontal", 1),
    Sketcher.Constraint("Vertical", 2),
    Sketcher.Constraint("Horizontal", 3),
    Sketcher.Constraint("DistanceX", 1, 1, 1, 2, 198.0),
    Sketcher.Constraint("DistanceY", 0, 1, 0, 2, 1.0),
    Sketcher.Constraint("DistanceX", 0, 2, -1, 1, 99.0),
    Sketcher.Constraint("DistanceY", 0, 2, -1, 1, 27.47),
])
sketch7.setExpression("Constraints[8]", "Params.sketch7_width")
sketch7.setExpression("Constraints[9]", "Params.sketch7_height")
pad5 = body.newObject("PartDesign::Pad", "Pad004")
pad5.Profile = sketch7
pad5.setExpression("Length", "Params.pad5_length")
pad5.Reversed = True

sketch8 = body.newObject("Sketcher::SketchObject", "Sketch007")
sketch8.AttachmentSupport = (doc.getObject("XY_Plane"), [""])
sketch8.MapMode = "FlatFace"
sketch8.addGeometry([
    Part.LineSegment(App.Vector(-99, 27.5, 0), App.Vector(-99, 28.5, 0)),
    Part.LineSegment(App.Vector(-99, 28.5, 0), App.Vector(99, 28.5, 0)),
    Part.LineSegment(App.Vector(99, 28.5, 0), App.Vector(99, 27.5, 0)),
    Part.LineSegment(App.Vector(99, 27.5, 0), App.Vector(-99, 27.5, 0)),
], False)
sketch8.addConstraint([
    Sketcher.Constraint("Coincident", 0, 2, 1, 1),
    Sketcher.Constraint("Coincident", 1, 2, 2, 1),
    Sketcher.Constraint("Coincident", 2, 2, 3, 1),
    Sketcher.Constraint("Coincident", 3, 2, 0, 1),
    Sketcher.Constraint("Vertical", 0),
    Sketcher.Constraint("Horizontal", 1),
    Sketcher.Constraint("Vertical", 2),
    Sketcher.Constraint("Horizontal", 3),
    Sketcher.Constraint("DistanceX", 1, 1, 1, 2, 198.0),
    Sketcher.Constraint("DistanceY", 0, 1, 0, 2, 1.0),
    Sketcher.Constraint("DistanceX", 0, 2, -1, 1, 99.0),
    Sketcher.Constraint("DistanceY", -1, 1, 0, 2, 28.47),
])
sketch8.setExpression("Constraints[8]", "Params.sketch8_width")
sketch8.setExpression("Constraints[9]", "Params.sketch8_height")
pad6 = body.newObject("PartDesign::Pad", "Pad005")
pad6.Profile = sketch8
pad6.setExpression("Length", "Params.pad6_length")
pad6.Reversed = True

doc.recompute()
